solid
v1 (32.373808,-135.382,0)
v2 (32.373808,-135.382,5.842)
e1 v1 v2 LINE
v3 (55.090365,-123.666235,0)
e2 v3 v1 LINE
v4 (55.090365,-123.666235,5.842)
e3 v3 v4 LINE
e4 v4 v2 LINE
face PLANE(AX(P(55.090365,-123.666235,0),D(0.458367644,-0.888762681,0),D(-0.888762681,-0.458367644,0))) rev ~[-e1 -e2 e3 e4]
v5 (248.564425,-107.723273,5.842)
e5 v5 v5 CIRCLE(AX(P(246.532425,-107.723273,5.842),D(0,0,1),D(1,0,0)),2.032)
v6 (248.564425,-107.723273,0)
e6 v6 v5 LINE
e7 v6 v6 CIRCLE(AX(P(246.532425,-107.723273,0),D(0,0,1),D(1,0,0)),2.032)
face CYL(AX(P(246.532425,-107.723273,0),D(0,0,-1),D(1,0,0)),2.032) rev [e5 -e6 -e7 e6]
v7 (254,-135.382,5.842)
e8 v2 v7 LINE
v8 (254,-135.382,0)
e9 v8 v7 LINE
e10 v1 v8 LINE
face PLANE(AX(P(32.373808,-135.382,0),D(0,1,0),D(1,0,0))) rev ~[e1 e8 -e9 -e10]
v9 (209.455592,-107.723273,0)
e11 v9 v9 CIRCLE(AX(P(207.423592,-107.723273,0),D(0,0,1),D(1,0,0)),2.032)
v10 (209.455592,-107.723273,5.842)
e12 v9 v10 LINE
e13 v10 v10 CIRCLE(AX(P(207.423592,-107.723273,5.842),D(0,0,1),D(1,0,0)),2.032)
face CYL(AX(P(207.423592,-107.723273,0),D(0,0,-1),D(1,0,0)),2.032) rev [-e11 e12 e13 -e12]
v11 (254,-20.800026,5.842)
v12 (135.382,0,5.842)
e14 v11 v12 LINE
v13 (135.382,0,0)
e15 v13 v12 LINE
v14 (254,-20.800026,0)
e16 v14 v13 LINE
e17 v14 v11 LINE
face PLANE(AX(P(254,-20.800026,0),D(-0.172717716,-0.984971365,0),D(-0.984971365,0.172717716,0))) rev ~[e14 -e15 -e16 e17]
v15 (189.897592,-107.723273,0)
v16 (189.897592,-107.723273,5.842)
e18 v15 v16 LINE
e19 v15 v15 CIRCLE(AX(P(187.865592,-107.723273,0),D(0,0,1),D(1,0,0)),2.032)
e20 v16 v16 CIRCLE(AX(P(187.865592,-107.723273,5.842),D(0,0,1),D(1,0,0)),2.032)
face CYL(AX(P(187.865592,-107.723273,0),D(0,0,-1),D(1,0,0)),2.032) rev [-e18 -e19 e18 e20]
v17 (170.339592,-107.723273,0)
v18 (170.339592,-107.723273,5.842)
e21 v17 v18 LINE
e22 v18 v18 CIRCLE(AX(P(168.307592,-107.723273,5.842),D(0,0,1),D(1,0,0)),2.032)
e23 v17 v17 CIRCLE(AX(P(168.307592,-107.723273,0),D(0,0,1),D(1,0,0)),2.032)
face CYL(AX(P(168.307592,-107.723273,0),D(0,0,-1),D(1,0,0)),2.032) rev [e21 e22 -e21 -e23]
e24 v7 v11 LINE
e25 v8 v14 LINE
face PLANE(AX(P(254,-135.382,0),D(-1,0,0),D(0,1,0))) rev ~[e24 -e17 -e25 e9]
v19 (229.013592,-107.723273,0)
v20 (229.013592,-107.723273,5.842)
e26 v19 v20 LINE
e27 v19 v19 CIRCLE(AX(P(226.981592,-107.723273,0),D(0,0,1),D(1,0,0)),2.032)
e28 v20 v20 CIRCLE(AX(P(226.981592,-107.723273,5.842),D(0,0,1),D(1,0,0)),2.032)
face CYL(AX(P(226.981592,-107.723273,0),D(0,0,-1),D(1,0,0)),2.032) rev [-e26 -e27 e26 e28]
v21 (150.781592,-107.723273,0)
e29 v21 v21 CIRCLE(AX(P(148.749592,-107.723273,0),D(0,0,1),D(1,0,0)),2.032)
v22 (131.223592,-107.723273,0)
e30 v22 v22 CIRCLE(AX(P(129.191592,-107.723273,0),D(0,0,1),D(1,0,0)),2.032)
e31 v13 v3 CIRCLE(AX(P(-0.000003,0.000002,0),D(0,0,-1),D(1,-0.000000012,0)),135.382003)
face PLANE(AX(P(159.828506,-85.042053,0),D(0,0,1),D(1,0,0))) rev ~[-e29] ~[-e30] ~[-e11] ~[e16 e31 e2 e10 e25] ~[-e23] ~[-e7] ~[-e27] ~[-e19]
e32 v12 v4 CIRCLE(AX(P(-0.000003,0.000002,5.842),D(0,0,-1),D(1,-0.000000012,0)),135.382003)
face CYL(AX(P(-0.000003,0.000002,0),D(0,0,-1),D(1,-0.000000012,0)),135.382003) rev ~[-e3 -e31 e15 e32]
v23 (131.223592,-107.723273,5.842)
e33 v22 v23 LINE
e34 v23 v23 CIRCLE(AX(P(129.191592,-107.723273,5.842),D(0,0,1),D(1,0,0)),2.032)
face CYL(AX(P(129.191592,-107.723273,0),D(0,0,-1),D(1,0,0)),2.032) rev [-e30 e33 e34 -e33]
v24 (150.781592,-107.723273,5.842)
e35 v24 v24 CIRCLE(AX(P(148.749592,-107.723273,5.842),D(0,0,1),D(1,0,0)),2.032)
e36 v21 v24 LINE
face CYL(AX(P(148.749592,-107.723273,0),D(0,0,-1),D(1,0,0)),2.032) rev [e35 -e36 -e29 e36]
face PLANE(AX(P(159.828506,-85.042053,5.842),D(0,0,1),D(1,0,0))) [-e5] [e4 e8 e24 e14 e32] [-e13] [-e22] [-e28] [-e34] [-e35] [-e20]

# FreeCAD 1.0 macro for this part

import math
import FreeCAD as App
import Part
import Sketcher
Q = App.Units.Quantity

doc = App.newDocument("Part")
params = doc.addObject("Spreadsheet::Sheet", "Params")
for row, (alias, value) in enumerate([
    ("sketch1_diameter", "0.16 in"),
    ("sketch1_radius", "5.3300001 in"),
    ("pad1_length", "0.23 in"),
], start=1):
    params.set(f"A{row}", alias)
    params.set(f"B{row}", "=" + value)
    params.setAlias(f"B{row}", alias)

body = doc.addObject("PartDesign::Body", "Body")

# Sketch on XY plane
sketch1 = doc.addObject("Sketcher::SketchObject", "Sketch")
body.addObject(sketch1)
sketch1.AttachmentSupport = (doc.XY_Plane, [""])
sketch1.MapMode = "FlatFace"
sketch1.addGeometry([
    Part.LineSegment(App.Vector(254, -20.800026, 0), App.Vector(135.382, 0, 0)),  # 0
    Part.ArcOfCircle(Part.Circle(App.Vector(-0.000003, 0.000002, 0), App.Vector(0, 0, 1), 135.382003), math.radians(-65.988165), math.radians(-0.000001)),  # 1
    Part.LineSegment(App.Vector(55.090365, -123.666235, 0), App.Vector(32.373808, -135.382, 0)),  # 2
    Part.LineSegment(App.Vector(32.373808, -135.382, 0), App.Vector(254, -135.382, 0)),  # 3
    Part.LineSegment(App.Vector(254, -135.382, 0), App.Vector(254, -20.800026, 0)),  # 4
    Part.Circle(App.Vector(129.191592, -107.723273, 0), App.Vector(0, 0, 1), 2.032),  # 5
    Part.Circle(App.Vector(148.749592, -107.723273, 0), App.Vector(0, 0, 1), 2.032),  # 6
    Part.Circle(App.Vector(168.307592, -107.723273, 0), App.Vector(0, 0, 1), 2.032),  # 7
    Part.Circle(App.Vector(187.865592, -107.723273, 0), App.Vector(0, 0, 1), 2.032),  # 8
    Part.Circle(App.Vector(207.423592, -107.723273, 0), App.Vector(0, 0, 1), 2.032),  # 9
    Part.Circle(App.Vector(226.981592, -107.723273, 0), App.Vector(0, 0, 1), 2.032),  # 10
    Part.Circle(App.Vector(246.532425, -107.723273, 0), App.Vector(0, 0, 1), 2.032),  # 11
], False)
sketch1.addConstraint([
    Sketcher.Constraint("Coincident", 0, 2, 1, 2),
    Sketcher.Constraint("Coincident", 1, 1, 2, 1),
    Sketcher.Constraint("Coincident", 2, 2, 3, 1),
    Sketcher.Constraint("Coincident", 3, 2, 4, 1),
    Sketcher.Constraint("Coincident", 4, 2, 0, 1),
    Sketcher.Constraint("Horizontal", 3),
    Sketcher.Constraint("Vertical", 4),
    Sketcher.Constraint("Coincident", 1, 3, -1, 1),
    Sketcher.Constraint("Equal", 5, 6),
    Sketcher.Constraint("Equal", 6, 7),
    Sketcher.Constraint("Equal", 7, 8),
    Sketcher.Constraint("Equal", 8, 9),
    Sketcher.Constraint("Equal", 9, 10),
    Sketcher.Constraint("Equal", 10, 11),
    Sketcher.Constraint("PointOnObject", 0, 2, -1),
    Sketcher.Constraint("Horizontal", 5, 3, 6, 3),
    Sketcher.Constraint("Horizontal", 6, 3, 7, 3),
    Sketcher.Constraint("Horizontal", 7, 3, 8, 3),
    Sketcher.Constraint("Horizontal", 8, 3, 9, 3),
    Sketcher.Constraint("Horizontal", 9, 3, 10, 3),
    Sketcher.Constraint("Horizontal", 10, 3, 11, 3),
    Sketcher.Constraint("Diameter", 5, Q("0.16 in")),
    Sketcher.Constraint("Radius", 1, Q("5.3300001 in")),
    Sketcher.Constraint("DistanceX", -1, 1, 3, 2, Q("10 in")),
    Sketcher.Constraint("DistanceY", 2, 2, -1, 1, Q("5.33 in")),
    Sketcher.Constraint("DistanceX", 5, 3, 6, 3, Q("0.77 in")),
    Sketcher.Constraint("DistanceX", 6, 3, 7, 3, Q("0.77 in")),
    Sketcher.Constraint("DistanceX", 7, 3, 8, 3, Q("0.77 in")),
    Sketcher.Constraint("DistanceX", 8, 3, 9, 3, Q("0.77 in")),
    Sketcher.Constraint("DistanceX", 9, 3, 10, 3, Q("0.77 in")),
    Sketcher.Constraint("DistanceX", 3, 1, 3, 2, 221.626192),
    Sketcher.Constraint("DistanceY", 4, 1, 4, 2, 114.581974),
    Sketcher.Constraint("DistanceX", -1, 1, 6, 3, 148.749592),
    Sketcher.Constraint("DistanceY", 1, 1, 5, 3, 15.942962),
    Sketcher.Constraint("Distance", 2, 25.559756),
    Sketcher.Constraint("DistanceX", -1, 1, 11, 3, 246.532425),
])
sketch1.setExpression("Constraints[21]", "Params.sketch1_diameter")
sketch1.setExpression("Constraints[22]", "Params.sketch1_radius")
pad1 = doc.addObject("PartDesign::Pad", "Pad")
body.addObject(pad1)
pad1.Profile = sketch1
pad1.setExpression("Length", "Params.pad1_length")

doc.recompute()
